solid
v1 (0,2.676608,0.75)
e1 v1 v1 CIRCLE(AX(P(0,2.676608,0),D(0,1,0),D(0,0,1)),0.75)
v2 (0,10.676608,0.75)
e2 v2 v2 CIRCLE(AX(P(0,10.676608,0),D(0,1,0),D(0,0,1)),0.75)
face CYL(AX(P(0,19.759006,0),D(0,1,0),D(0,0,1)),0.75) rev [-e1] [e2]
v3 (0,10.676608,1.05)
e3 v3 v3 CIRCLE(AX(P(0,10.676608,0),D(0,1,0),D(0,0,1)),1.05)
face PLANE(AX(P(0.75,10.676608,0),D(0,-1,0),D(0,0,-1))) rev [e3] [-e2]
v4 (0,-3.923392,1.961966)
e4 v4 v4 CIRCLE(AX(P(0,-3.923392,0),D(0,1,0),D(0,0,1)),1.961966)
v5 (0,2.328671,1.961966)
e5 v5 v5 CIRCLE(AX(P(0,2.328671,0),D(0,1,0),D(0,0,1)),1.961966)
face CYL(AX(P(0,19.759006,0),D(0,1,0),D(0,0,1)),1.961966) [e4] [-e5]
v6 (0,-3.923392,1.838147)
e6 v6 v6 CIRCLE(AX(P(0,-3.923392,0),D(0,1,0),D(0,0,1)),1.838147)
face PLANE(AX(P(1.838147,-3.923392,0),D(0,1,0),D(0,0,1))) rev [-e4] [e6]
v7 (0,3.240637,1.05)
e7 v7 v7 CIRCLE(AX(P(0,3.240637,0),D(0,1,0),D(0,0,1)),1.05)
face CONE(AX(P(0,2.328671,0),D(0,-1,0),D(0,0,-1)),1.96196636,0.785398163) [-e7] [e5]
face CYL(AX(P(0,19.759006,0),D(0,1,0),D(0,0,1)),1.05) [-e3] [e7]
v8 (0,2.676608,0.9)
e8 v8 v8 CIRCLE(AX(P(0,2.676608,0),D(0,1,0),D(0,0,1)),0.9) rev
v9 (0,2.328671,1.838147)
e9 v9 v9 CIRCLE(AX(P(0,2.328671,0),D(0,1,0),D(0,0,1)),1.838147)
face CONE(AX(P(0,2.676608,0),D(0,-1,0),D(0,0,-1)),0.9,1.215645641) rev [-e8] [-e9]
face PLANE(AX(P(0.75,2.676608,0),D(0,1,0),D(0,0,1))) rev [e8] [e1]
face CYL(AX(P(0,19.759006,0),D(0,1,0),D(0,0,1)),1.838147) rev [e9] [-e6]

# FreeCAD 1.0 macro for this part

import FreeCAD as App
import Part
import Sketcher
Q = App.Units.Quantity


def add_polygon(sketch, points):
    """Adds a closed chain of lines whose ends are joined by coincident constraints."""
    first, n = sketch.GeometryCount, len(points)
    for a, b in zip(points, points[1:] + points[:1]):
        sketch.addGeometry(Part.LineSegment(App.Vector(*a, 0), App.Vector(*b, 0)), False)
    for i in range(n):
        sketch.addConstraint(Sketcher.Constraint("Coincident", first + i, 2, first + (i + 1) % n, 1))

doc = App.newDocument("Part")
params = doc.addObject("Spreadsheet::Sheet", "Params")
for row, (alias, value) in enumerate([
    ("sketch1_width", "0.15 mm"),
    ("revolution_angle", "360 deg"),
    ("sketch2_height", "8 mm"),
    ("sketch2_width", "0.3 mm"),
    ("revolution2_angle", "360 deg"),
], start=1):
    params.set(f"A{row}", alias)
    params.set(f"B{row}", "=" + value)
    params.setAlias(f"B{row}", alias)

body = doc.addObject("PartDesign::Body", "Body")

# Sketch on XY plane
sketch1 = body.newObject("Sketcher::SketchObject", "Sketch")
sketch1.AttachmentSupport = (doc.getObject("XY_Plane"), [""])
sketch1.MapMode = "FlatFace"
add_polygon(sketch1, [(1.05, 2.68), (0.9, 2.68), (1.84, 2.33), (1.84, -3.92), (1.96, -3.92), (1.96, 2.33), (1.05, 3.24)])  # lines 0-6
sketch1.addConstraint([
    Sketcher.Constraint("Horizontal", 0),
    Sketcher.Constraint("Vertical", 2),
    Sketcher.Constraint("Horizontal", 3),
    Sketcher.Constraint("Vertical", 4),
    Sketcher.Constraint("Vertical", 6),
    Sketcher.Constraint("Horizontal", 1, 2, 4, 2),
    Sketcher.Constraint("Angle", 5, Q("135 deg")),
    Sketcher.Constraint("DistanceX", 0, 2, 0, 1, Q("0.15 mm")),
    Sketcher.Constraint("DistanceX", -1, 1, 0, 2, Q("0.9 mm")),
    Sketcher.Constraint("DistanceY", 2, 2, 0, 2, Q("6.6 mm")),
    Sketcher.Constraint("DistanceX", 3, 1, 3, 2, Q("0.123819 mm")),
    Sketcher.Constraint("DistanceY", 6, 2, 6, 1, Q("0.56403 mm")),
    Sketcher.Constraint("Distance", 1, Q("1.00059 mm")),
    Sketcher.Constraint("DistanceY", -1, 1, 1, 2, Q("2.328671 mm")),
])
sketch1.setExpression("Constraints[14]", "Params.sketch1_width")
revolution = body.newObject("PartDesign::Revolution", "Revolution")
revolution.Profile = sketch1
revolution.ReferenceAxis = (sketch1, ["V_Axis"])
revolution.setExpression("Angle", "Params.revolution_angle")

# Sketch on XY plane
sketch2 = body.newObject("Sketcher::SketchObject", "Sketch001")
sketch2.AttachmentSupport = (doc.getObject("XY_Plane"), [""])
sketch2.MapMode = "FlatFace"
add_polygon(sketch2, [(0.75, 10.68), (0.75, 2.68), (1.05, 2.68), (1.05, 10.68)])  # lines 0-3
sketch2.addConstraint([
    Sketcher.Constraint("Vertical", 0),
    Sketcher.Constraint("Horizontal", 1),
    Sketcher.Constraint("Vertical", 2),
    Sketcher.Constraint("Horizontal", 3),
    Sketcher.Constraint("DistanceY", 0, 2, 0, 1, Q("8 mm")),
    Sketcher.Constraint("DistanceX", 1, 1, 1, 2, Q("0.3 mm")),
    Sketcher.Constraint("DistanceX", -1, 1, 0, 2, Q("0.75 mm")),
    Sketcher.Constraint("DistanceY", -1, 1, 0, 2, Q("2.676608 mm")),
])
sketch2.setExpression("Constraints[8]", "Params.sketch2_height")
sketch2.setExpression("Constraints[9]", "Params.sketch2_width")
revolution2 = body.newObject("PartDesign::Revolution", "Revolution001")
revolution2.Profile = sketch2
revolution2.ReferenceAxis = (sketch2, ["V_Axis"])
revolution2.setExpression("Angle", "Params.revolution2_angle")

doc.recompute()
